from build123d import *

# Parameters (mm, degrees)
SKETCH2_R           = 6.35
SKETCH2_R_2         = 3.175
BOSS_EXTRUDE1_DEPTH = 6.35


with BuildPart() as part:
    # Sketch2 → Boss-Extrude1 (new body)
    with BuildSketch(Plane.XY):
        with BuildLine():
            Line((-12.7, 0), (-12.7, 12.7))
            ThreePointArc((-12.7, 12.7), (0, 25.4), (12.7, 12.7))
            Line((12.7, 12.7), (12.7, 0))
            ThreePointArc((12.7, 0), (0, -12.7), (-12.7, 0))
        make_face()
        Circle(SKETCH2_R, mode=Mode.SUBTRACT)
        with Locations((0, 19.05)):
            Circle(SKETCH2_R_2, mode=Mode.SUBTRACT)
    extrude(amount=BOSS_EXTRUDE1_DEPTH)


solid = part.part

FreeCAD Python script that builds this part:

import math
import FreeCAD as App
import Part
import Sketcher
Q = App.Units.Quantity

doc = App.newDocument("Part")
body = doc.addObject("PartDesign::Body", "Body")

sketch1 = body.newObject("Sketcher::SketchObject", "Sketch")
sketch1.AttachmentSupport = (doc.getObject("XY_Plane"), [""])
sketch1.MapMode = "FlatFace"
sketch1.addGeometry([
    Part.LineSegment(App.Vector(-12.7, 12.7, 0), App.Vector(-12.7, 0, 0)),
    Part.ArcOfCircle(Part.Circle(App.Vector(0, 0, 0), App.Vector(0, 0, 1), 12.7), math.radians(180), math.radians(360)),
    Part.LineSegment(App.Vector(12.7, 0, 0), App.Vector(12.7, 12.7, 0)),
    Part.ArcOfCircle(Part.Circle(App.Vector(0, 12.7, 0), App.Vector(0, 0, 1), 12.7), math.radians(0), math.radians(180)),
    Part.Circle(App.Vector(0, 0, 0), App.Vector(0, 0, 1), 6.3),
    Part.Circle(App.Vector(0, 19.1, 0), App.Vector(0, 0, 1), 3.2),
], False)
sketch1.addConstraint([
    Sketcher.Constraint("Tangent", 0, 2, 1, 1),
    Sketcher.Constraint("Tangent", 1, 2, 2, 1),
    Sketcher.Constraint("Tangent", 2, 2, 3, 1),
    Sketcher.Constraint("Tangent", 3, 2, 0, 1),
    Sketcher.Constraint("Vertical", 0),
    Sketcher.Constraint("Vertical", 2),
    Sketcher.Constraint("Coincident", 1, 3, -1, 1),
    Sketcher.Constraint("Coincident", 4, 3, -1, 1),
    Sketcher.Constraint("PointOnObject", 5, 3, -2),
    Sketcher.Constraint("Diameter", 4, Q("0.5 in")),
    Sketcher.Constraint("Radius", 1, Q("0.5 in")),
    Sketcher.Constraint("Diameter", 5, Q("0.25 in")),
    Sketcher.Constraint("DistanceY", 0, 2, 0, 1, Q("0.5 in")),
    Sketcher.Constraint("DistanceY", -1, 1, 5, 3, Q("0.75 in")),
])
pad1 = body.newObject("PartDesign::Pad", "Pad")
pad1.Profile = sketch1
pad1.Length = Q("0.25 in")

doc.recompute()
